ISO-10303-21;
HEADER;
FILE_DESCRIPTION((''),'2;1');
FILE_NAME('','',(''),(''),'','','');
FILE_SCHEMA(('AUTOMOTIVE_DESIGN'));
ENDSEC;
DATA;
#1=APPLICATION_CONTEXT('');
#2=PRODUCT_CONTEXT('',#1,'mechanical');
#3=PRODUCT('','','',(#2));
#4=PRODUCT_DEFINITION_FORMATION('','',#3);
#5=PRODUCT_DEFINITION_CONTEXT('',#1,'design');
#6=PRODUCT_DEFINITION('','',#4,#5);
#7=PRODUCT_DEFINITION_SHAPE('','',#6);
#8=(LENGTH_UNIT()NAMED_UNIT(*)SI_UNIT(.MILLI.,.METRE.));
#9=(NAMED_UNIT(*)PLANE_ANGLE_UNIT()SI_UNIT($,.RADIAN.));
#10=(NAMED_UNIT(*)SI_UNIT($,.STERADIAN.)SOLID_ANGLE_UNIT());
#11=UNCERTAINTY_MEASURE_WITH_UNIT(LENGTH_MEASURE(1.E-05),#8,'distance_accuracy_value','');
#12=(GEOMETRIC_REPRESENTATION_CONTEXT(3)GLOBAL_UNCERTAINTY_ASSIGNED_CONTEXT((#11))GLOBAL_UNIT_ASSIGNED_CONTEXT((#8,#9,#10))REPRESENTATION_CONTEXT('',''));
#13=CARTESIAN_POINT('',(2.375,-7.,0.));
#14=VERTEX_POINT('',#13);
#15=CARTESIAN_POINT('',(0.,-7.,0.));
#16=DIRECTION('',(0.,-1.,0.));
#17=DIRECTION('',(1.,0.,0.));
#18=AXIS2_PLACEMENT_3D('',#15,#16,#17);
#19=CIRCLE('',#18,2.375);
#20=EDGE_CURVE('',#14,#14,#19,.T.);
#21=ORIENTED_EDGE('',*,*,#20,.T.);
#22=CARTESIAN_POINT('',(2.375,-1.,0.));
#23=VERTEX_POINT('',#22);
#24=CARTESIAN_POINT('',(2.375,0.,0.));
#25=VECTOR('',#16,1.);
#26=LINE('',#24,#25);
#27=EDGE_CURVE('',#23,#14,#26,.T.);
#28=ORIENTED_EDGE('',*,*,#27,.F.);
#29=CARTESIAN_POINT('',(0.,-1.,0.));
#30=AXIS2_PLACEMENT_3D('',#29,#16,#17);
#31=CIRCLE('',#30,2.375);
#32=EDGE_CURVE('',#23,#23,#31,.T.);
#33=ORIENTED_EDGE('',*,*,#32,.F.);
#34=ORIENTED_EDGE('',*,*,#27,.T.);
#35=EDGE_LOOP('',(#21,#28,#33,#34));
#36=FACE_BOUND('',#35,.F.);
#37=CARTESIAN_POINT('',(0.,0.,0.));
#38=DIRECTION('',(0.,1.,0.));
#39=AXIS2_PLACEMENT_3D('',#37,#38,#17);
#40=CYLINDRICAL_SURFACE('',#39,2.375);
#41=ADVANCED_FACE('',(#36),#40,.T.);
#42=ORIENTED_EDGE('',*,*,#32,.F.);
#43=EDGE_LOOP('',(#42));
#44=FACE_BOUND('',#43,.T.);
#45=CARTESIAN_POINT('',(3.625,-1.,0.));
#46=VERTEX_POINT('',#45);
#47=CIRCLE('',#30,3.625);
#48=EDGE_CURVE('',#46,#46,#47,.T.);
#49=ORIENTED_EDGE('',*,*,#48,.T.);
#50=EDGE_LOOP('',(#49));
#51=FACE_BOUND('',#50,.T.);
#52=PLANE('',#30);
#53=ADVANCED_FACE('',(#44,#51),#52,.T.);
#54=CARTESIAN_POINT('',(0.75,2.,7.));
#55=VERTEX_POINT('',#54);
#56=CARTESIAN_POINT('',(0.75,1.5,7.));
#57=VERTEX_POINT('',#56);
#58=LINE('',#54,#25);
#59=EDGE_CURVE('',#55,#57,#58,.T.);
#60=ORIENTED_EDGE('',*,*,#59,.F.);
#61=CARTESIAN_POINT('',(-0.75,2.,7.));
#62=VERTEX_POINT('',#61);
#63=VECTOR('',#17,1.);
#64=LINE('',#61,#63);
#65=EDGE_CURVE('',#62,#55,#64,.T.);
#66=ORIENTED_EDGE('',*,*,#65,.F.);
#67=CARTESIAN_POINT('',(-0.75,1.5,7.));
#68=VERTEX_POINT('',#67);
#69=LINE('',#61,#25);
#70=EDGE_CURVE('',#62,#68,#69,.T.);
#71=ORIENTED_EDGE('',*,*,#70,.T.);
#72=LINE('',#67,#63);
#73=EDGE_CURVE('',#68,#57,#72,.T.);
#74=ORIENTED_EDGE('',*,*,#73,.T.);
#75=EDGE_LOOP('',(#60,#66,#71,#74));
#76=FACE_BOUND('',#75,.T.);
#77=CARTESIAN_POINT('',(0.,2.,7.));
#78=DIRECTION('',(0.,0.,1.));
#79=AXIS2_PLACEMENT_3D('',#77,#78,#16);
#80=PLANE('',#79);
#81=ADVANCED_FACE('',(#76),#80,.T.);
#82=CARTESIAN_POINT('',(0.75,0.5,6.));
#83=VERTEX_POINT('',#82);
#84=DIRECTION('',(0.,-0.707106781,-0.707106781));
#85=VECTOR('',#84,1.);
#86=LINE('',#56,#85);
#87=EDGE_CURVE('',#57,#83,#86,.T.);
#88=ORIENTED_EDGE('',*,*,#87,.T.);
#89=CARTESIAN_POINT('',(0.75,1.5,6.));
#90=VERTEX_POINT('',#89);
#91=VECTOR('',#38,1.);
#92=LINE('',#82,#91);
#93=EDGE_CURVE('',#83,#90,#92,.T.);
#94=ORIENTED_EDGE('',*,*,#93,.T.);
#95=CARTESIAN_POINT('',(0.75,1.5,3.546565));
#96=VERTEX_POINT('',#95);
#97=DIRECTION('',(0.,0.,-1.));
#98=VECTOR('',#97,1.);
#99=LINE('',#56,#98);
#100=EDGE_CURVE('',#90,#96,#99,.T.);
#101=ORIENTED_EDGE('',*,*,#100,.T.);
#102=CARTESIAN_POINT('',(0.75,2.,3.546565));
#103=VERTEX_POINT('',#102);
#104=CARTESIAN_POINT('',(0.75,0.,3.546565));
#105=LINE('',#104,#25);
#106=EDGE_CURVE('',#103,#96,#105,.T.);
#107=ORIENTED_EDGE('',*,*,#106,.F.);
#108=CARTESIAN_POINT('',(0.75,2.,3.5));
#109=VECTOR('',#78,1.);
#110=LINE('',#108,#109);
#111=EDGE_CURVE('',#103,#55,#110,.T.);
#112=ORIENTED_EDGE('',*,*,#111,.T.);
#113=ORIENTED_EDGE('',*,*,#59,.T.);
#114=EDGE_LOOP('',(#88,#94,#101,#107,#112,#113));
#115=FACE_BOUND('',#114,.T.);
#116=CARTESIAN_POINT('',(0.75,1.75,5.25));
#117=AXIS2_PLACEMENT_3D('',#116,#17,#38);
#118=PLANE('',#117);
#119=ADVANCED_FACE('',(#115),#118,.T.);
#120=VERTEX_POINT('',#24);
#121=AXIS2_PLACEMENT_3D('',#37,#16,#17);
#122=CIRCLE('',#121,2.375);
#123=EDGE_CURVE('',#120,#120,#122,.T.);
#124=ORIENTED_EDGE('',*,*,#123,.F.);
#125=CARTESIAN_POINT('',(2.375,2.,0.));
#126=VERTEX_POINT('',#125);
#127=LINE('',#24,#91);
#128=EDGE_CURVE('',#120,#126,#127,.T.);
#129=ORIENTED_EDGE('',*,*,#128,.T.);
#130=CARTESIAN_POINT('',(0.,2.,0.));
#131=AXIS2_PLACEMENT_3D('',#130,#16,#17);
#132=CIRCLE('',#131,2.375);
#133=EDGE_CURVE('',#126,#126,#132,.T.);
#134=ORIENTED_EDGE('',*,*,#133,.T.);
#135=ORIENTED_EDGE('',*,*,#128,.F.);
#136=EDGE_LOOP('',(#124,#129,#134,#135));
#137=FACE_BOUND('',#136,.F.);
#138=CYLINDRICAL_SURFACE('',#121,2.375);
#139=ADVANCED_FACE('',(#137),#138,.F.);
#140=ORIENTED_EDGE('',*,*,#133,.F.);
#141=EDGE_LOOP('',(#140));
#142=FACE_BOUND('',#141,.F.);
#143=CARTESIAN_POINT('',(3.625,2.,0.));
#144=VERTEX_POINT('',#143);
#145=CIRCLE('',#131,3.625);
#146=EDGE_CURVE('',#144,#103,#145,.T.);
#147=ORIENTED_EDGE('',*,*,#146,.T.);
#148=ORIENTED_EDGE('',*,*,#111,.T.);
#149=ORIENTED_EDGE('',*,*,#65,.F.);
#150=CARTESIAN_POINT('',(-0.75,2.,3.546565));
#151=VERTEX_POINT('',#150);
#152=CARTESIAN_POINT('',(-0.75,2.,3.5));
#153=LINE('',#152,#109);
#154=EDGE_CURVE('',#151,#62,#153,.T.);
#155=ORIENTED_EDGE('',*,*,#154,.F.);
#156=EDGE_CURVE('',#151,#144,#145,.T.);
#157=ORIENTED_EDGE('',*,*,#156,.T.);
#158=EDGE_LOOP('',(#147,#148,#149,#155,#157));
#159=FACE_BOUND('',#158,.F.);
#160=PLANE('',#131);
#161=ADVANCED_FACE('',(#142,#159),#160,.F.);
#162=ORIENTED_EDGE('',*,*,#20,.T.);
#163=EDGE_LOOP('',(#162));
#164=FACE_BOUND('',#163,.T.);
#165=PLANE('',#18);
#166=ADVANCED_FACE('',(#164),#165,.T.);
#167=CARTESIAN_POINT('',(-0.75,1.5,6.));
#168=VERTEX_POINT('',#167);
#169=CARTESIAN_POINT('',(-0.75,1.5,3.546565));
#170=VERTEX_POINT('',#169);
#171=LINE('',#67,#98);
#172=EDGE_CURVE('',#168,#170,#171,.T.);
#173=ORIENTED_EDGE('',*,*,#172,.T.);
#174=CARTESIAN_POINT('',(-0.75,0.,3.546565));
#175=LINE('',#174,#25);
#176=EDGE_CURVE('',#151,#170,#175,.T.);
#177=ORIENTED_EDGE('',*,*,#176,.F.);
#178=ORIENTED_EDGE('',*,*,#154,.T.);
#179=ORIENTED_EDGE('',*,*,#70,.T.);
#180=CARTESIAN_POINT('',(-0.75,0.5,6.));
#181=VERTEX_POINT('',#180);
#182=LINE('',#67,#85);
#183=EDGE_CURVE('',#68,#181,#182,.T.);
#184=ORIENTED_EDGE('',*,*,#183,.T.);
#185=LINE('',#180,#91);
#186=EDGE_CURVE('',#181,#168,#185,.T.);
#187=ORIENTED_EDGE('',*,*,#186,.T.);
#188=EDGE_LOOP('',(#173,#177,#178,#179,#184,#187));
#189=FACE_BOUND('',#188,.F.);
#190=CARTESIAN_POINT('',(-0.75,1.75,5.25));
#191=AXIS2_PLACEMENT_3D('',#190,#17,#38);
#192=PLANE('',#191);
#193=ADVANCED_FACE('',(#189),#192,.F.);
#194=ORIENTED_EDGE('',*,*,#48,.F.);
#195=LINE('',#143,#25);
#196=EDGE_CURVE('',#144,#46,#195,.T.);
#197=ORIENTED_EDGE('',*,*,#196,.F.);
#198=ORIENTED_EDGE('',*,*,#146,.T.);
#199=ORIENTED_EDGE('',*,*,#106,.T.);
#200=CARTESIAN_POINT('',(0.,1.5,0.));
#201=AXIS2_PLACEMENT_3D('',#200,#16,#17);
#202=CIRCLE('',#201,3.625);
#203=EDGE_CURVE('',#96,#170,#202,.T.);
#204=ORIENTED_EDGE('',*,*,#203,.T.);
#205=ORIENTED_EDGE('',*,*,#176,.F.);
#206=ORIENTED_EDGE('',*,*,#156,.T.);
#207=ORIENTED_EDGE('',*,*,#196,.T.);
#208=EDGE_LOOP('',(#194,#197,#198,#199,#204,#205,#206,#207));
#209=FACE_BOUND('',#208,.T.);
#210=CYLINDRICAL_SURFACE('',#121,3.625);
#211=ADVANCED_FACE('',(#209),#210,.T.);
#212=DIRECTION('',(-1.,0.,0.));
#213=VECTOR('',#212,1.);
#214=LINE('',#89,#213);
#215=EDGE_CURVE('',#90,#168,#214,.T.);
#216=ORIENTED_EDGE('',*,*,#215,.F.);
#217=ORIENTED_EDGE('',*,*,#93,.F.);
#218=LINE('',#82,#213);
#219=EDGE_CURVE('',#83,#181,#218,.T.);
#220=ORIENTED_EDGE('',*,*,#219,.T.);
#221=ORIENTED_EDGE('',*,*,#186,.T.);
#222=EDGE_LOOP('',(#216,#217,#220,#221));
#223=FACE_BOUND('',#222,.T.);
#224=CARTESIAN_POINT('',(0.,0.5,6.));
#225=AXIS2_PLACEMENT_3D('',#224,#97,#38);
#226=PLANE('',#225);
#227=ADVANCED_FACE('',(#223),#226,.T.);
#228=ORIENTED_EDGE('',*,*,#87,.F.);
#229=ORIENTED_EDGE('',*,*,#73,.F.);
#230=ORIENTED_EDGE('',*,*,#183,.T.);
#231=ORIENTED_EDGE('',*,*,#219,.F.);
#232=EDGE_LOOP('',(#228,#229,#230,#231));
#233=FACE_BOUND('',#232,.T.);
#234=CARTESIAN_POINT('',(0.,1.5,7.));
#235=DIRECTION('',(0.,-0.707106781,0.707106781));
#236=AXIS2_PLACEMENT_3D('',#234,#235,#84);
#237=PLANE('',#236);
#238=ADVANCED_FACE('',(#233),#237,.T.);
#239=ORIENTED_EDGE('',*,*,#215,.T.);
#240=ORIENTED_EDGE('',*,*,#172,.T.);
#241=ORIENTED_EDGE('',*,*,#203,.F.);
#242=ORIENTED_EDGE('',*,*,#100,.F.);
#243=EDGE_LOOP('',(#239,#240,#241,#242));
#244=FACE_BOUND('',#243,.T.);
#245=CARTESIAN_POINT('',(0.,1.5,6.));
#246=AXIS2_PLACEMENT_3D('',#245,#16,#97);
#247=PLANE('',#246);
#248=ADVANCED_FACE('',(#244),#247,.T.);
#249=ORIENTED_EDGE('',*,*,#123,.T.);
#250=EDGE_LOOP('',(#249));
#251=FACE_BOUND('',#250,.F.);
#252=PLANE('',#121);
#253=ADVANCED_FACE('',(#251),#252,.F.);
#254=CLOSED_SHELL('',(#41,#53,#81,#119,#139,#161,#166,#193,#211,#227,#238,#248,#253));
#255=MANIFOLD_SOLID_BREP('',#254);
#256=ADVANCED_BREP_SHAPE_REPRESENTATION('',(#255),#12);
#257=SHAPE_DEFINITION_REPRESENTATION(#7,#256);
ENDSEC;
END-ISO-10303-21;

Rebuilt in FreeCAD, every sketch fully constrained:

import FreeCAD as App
import Part
import Sketcher
Q = App.Units.Quantity


def add_polygon(sketch, points):
    """Adds a closed chain of lines whose ends are joined by coincident constraints."""
    first, n = sketch.GeometryCount, len(points)
    for a, b in zip(points, points[1:] + points[:1]):
        sketch.addGeometry(Part.LineSegment(App.Vector(*a, 0), App.Vector(*b, 0)), False)
    for i in range(n):
        sketch.addConstraint(Sketcher.Constraint("Coincident", first + i, 2, first + (i + 1) % n, 1))

doc = App.newDocument("Part")
body = doc.addObject("PartDesign::Body", "Body")

sketch1 = doc.addObject("Sketcher::SketchObject", "Sketch")
body.addObject(sketch1)
sketch1.AttachmentSupport = (doc.XZ_Plane, [""])
sketch1.MapMode = "FlatFace"
sketch1.addGeometry([
    Part.Circle(App.Vector(0, 0, 0), App.Vector(0, 0, 1), 3.6),
    Part.Circle(App.Vector(0, 0, 0), App.Vector(0, 0, 1), 2.4),
], False)
sketch1.addConstraint([
    Sketcher.Constraint("Coincident", 0, 3, -1, 1),
    Sketcher.Constraint("Coincident", 1, 3, -1, 1),
    Sketcher.Constraint("Diameter", 0, Q("7.25 mm")),
    Sketcher.Constraint("Diameter", 1, Q("4.75 mm")),
])
pad1 = doc.addObject("PartDesign::Pad", "Pad")
body.addObject(pad1)
pad1.Profile = sketch1
pad1.Type = "TwoLengths"
pad1.Length = 1
pad1.Length2 = 2

sketch2 = doc.addObject("Sketcher::SketchObject", "Sketch001")
body.addObject(sketch2)
sketch2.AttachmentSupport = (doc.XZ_Plane, [""])
sketch2.MapMode = "FlatFace"
sketch2.addGeometry(Part.Circle(App.Vector(0, 0, 0), App.Vector(0, 0, 1), 2.4), False)
sketch2.addConstraint([
    Sketcher.Constraint("Coincident", 0, 3, -1, 1),
    Sketcher.Constraint("Diameter", 0, Q("4.75 mm")),
])
pad2 = doc.addObject("PartDesign::Pad", "Pad001")
body.addObject(pad2)
pad2.Profile = sketch2
pad2.Length = 7

sketch3 = doc.addObject("Sketcher::SketchObject", "Sketch002")
body.addObject(sketch3)
sketch3.AttachmentSupport = (doc.YZ_Plane, [""])
sketch3.MapMode = "FlatFace"
add_polygon(sketch3, [(1.5, 3.5), (2, 3.5), (2, 7), (1.5, 7), (0.5, 6), (1.5, 6)])
sketch3.addConstraint([
    Sketcher.Constraint("Horizontal", 0),
    Sketcher.Constraint("Vertical", 1),
    Sketcher.Constraint("Horizontal", 2),
    Sketcher.Constraint("Horizontal", 4),
    Sketcher.Constraint("Vertical", 5),
    Sketcher.Constraint("Vertical", 2, 2, 4, 2),
    Sketcher.Constraint("DistanceX", 4, 1, 4, 2, Q("1 mm")),
    Sketcher.Constraint("Angle", 3, Q("-135 deg")),
    Sketcher.Constraint("DistanceX", 0, 1, 0, 2, Q("0.5 mm")),
    Sketcher.Constraint("DistanceY", 1, 1, 1, 2, Q("3.5 mm")),
    Sketcher.Constraint("DistanceX", -1, 1, 0, 2, Q("2 mm")),
    Sketcher.Constraint("DistanceY", -1, 1, 1, 2, Q("7 mm")),
])
pad3 = doc.addObject("PartDesign::Pad", "Pad002")
body.addObject(pad3)
pad3.Profile = sketch3
pad3.Length = 1.5
pad3.Midplane = True

doc.recompute()
